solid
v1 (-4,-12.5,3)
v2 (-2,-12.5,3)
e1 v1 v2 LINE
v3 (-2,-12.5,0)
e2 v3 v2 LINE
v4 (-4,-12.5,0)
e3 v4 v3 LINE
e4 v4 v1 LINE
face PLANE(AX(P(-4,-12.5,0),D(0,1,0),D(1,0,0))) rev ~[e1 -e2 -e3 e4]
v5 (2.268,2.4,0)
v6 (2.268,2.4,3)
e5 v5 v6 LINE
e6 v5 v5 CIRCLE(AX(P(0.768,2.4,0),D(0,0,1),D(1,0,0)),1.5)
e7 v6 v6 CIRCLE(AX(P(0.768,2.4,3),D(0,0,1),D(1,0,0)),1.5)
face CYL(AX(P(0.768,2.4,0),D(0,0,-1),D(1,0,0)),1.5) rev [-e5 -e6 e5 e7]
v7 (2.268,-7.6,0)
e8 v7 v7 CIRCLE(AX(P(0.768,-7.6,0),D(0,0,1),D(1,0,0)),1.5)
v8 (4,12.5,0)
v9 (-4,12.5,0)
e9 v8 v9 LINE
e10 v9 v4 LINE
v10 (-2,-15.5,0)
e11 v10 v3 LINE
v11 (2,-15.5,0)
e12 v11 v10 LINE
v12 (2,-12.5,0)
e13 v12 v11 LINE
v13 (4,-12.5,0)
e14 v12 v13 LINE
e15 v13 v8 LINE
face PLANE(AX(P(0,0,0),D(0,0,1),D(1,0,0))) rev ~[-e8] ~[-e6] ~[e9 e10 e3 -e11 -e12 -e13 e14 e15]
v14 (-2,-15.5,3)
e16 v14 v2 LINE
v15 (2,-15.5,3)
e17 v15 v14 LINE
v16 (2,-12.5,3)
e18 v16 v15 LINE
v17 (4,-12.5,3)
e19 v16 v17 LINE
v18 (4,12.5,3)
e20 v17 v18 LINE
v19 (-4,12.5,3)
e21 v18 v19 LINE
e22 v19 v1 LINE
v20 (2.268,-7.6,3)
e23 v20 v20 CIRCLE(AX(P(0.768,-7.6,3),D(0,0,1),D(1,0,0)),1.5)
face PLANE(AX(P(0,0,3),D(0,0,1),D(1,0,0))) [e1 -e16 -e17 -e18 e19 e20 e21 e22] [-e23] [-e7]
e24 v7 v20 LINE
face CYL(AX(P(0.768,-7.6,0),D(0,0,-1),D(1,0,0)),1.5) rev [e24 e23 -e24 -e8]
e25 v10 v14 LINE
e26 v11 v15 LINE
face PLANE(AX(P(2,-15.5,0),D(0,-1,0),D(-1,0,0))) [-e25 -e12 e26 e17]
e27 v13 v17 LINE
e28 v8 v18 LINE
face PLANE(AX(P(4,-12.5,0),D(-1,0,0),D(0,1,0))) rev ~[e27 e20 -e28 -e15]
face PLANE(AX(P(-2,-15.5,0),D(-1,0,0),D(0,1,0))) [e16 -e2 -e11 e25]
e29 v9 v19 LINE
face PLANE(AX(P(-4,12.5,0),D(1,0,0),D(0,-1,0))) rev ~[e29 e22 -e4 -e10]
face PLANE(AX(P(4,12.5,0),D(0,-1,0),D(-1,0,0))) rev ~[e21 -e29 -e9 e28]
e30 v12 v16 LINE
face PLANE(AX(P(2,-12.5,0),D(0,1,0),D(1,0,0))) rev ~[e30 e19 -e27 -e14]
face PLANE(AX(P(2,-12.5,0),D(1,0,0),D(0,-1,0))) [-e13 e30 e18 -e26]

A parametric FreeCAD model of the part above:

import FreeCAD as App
import Part
import Sketcher
Q = App.Units.Quantity

doc = App.newDocument("Part")
params = doc.addObject("Spreadsheet::Sheet", "Params")
for row, (alias, value) in enumerate([
    ("sketch1_diameter", "3 mm"),
    ("sketch1_width", "4 mm"),
    ("sketch1_width2", "8 mm"),
    ("sketch1_height", "25 mm"),
    ("sketch1_height2", "3 mm"),
    ("pad1_length", "3 mm"),
], start=1):
    params.set(f"A{row}", alias)
    params.set(f"B{row}", "=" + value)
    params.setAlias(f"B{row}", alias)

body = doc.addObject("PartDesign::Body", "Body")

# Sketch on XY plane
sketch1 = body.newObject("Sketcher::SketchObject", "Sketch")
sketch1.AttachmentSupport = (doc.getObject("XY_Plane"), [""])
sketch1.MapMode = "FlatFace"
sketch1.addGeometry([
    Part.LineSegment(App.Vector(-4, 12.5, 0), App.Vector(-4, -12.5, 0)),  # 0
    Part.LineSegment(App.Vector(-4, -12.5, 0), App.Vector(-2, -12.5, 0)),  # 1
    Part.LineSegment(App.Vector(-2, -12.5, 0), App.Vector(-2, -15.5, 0)),  # 2
    Part.LineSegment(App.Vector(-2, -15.5, 0), App.Vector(2, -15.5, 0)),  # 3
    Part.LineSegment(App.Vector(2, -15.5, 0), App.Vector(2, -12.5, 0)),  # 4
    Part.LineSegment(App.Vector(2, -12.5, 0), App.Vector(4, -12.5, 0)),  # 5
    Part.LineSegment(App.Vector(4, -12.5, 0), App.Vector(4, 12.5, 0)),  # 6
    Part.LineSegment(App.Vector(4, 12.5, 0), App.Vector(-4, 12.5, 0)),  # 7
    Part.Circle(App.Vector(0.768, -7.6, 0), App.Vector(0, 0, 1), 1.5),  # 8
    Part.Circle(App.Vector(0.768, 2.4, 0), App.Vector(0, 0, 1), 1.5),  # 9
], False)
sketch1.addConstraint([
    Sketcher.Constraint("Coincident", 0, 2, 1, 1),
    Sketcher.Constraint("Coincident", 1, 2, 2, 1),
    Sketcher.Constraint("Coincident", 2, 2, 3, 1),
    Sketcher.Constraint("Coincident", 3, 2, 4, 1),
    Sketcher.Constraint("Coincident", 4, 2, 5, 1),
    Sketcher.Constraint("Coincident", 5, 2, 6, 1),
    Sketcher.Constraint("Coincident", 6, 2, 7, 1),
    Sketcher.Constraint("Coincident", 7, 2, 0, 1),
    Sketcher.Constraint("Vertical", 0),
    Sketcher.Constraint("Horizontal", 1),
    Sketcher.Constraint("Vertical", 2),
    Sketcher.Constraint("Horizontal", 3),
    Sketcher.Constraint("Vertical", 4),
    Sketcher.Constraint("Horizontal", 5),
    Sketcher.Constraint("Vertical", 6),
    Sketcher.Constraint("Horizontal", 7),
    Sketcher.Constraint("Equal", 8, 9),
    Sketcher.Constraint("Symmetric", 0, 2, 6, 2, -1, 1),
    Sketcher.Constraint("Symmetric", 1, 2, 4, 2, -2),
    Sketcher.Constraint("Vertical", 8, 3, 9, 3),
    Sketcher.Constraint("Diameter", 8, Q("3 mm")),
    Sketcher.Constraint("DistanceX", 3, 1, 3, 2, Q("4 mm")),
    Sketcher.Constraint("DistanceX", 7, 2, 7, 1, Q("8 mm")),
    Sketcher.Constraint("DistanceY", 0, 2, 0, 1, Q("25 mm")),
    Sketcher.Constraint("DistanceY", 2, 2, 2, 1, Q("3 mm")),
    Sketcher.Constraint("DistanceY", 8, 3, 9, 3, Q("10 mm")),
    Sketcher.Constraint("DistanceY", 9, 3, 6, 2, Q("10.1 mm")),
    Sketcher.Constraint("DistanceX", -1, 1, 8, 3, Q("0.768 mm")),
])
sketch1.setExpression("Constraints[20]", "Params.sketch1_diameter")
sketch1.setExpression("Constraints[21]", "Params.sketch1_width")
sketch1.setExpression("Constraints[22]", "Params.sketch1_width2")
sketch1.setExpression("Constraints[23]", "Params.sketch1_height")
sketch1.setExpression("Constraints[24]", "Params.sketch1_height2")
pad1 = body.newObject("PartDesign::Pad", "Pad")
pad1.Profile = sketch1
pad1.setExpression("Length", "Params.pad1_length")

doc.recompute()
